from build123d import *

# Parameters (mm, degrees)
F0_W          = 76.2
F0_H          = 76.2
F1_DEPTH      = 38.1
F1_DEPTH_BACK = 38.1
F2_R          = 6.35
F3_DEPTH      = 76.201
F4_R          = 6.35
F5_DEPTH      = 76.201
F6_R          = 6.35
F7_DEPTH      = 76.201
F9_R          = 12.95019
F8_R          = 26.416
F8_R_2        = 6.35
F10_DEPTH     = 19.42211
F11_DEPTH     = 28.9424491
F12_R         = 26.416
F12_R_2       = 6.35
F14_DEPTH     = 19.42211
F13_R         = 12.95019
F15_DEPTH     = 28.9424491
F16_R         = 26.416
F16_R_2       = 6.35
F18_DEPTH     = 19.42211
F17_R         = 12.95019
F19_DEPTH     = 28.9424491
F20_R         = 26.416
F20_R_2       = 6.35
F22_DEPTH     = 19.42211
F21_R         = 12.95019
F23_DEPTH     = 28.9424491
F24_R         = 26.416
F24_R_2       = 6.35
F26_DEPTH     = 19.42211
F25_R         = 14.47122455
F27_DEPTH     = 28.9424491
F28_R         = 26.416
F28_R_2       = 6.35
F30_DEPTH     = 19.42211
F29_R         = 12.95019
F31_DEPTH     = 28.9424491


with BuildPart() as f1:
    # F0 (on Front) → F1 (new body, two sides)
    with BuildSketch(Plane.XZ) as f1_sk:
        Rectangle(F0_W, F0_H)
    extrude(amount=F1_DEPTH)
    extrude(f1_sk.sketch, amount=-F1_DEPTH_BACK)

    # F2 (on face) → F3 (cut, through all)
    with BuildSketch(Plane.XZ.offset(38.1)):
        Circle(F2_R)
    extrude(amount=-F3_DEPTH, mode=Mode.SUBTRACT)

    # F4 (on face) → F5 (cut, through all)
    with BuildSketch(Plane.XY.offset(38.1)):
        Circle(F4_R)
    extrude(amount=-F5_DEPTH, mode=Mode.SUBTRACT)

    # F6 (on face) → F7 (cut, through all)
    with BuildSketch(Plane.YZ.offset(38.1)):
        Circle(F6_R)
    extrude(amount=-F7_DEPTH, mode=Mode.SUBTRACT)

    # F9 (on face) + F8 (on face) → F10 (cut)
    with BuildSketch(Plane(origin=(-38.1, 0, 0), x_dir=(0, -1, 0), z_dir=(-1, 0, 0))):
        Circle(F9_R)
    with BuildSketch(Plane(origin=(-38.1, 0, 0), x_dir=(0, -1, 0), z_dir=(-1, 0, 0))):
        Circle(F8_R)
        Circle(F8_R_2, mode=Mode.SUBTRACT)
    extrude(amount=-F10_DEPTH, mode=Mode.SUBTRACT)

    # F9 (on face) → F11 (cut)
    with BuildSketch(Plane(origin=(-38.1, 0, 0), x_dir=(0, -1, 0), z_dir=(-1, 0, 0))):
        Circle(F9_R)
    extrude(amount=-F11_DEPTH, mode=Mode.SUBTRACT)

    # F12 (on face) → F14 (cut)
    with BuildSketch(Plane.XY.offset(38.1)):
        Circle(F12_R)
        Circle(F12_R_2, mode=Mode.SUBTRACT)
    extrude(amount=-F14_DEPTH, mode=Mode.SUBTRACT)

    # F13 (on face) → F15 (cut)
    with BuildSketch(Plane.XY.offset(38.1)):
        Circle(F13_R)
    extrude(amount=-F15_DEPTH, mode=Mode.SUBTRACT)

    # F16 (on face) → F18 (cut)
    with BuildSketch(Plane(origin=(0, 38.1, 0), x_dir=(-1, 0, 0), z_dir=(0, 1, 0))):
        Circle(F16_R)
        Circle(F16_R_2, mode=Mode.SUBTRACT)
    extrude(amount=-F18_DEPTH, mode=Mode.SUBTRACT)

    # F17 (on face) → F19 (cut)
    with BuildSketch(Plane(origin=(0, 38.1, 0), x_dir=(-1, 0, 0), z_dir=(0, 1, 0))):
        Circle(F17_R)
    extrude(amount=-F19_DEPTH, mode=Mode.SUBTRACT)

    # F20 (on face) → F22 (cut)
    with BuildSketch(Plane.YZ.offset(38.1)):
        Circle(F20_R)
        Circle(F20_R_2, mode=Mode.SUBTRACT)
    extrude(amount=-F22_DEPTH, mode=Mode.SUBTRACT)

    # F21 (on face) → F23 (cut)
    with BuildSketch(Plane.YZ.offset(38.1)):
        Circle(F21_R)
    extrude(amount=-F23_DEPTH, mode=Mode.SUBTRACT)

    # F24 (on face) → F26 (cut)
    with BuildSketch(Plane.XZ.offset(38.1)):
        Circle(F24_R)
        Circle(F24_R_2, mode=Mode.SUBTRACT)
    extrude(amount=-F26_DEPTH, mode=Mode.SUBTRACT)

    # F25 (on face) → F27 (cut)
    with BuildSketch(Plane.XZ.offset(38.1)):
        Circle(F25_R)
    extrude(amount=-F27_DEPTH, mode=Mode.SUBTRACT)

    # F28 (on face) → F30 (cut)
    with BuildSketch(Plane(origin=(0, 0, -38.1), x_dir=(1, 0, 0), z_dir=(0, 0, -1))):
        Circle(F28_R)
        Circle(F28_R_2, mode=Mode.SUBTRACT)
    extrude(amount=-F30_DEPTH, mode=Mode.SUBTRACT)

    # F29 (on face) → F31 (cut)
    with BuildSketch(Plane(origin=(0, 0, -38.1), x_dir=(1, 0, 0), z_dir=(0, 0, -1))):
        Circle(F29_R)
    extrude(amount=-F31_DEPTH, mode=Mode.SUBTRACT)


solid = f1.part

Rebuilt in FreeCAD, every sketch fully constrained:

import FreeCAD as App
import Part
import Sketcher
Q = App.Units.Quantity


def add_polygon(sketch, points):
    """Adds a closed chain of lines whose ends are joined by coincident constraints."""
    first, n = sketch.GeometryCount, len(points)
    for a, b in zip(points, points[1:] + points[:1]):
        sketch.addGeometry(Part.LineSegment(App.Vector(*a, 0), App.Vector(*b, 0)), False)
    for i in range(n):
        sketch.addConstraint(Sketcher.Constraint("Coincident", first + i, 2, first + (i + 1) % n, 1))

doc = App.newDocument("Part")
params = doc.addObject("Spreadsheet::Sheet", "Params")
for row, (alias, value) in enumerate([
    ("sketch1_width", "3 in"),
    ("pad1_length", "1.5 in"),
    ("pad1_length2", "1.5 in"),
    ("sketch2_diameter", "0.5 in"),
    ("sketch3_diameter", "0.5 in"),
    ("sketch4_diameter", "0.5 in"),
    ("sketch5_diameter", "2.08 in"),
    ("pocket4_length", "19.42211 mm"),
    ("pocket5_length", "28.942449 mm"),
    ("sketch7_diameter", "0.5 in"),
    ("sketch7_diameter2", "2.08 in"),
    ("pocket6_length", "19.42211 mm"),
    ("pocket7_length", "28.942449 mm"),
    ("sketch9_diameter", "0.5 in"),
    ("sketch9_diameter2", "2.08 in"),
    ("pocket8_length", "19.42211 mm"),
    ("pocket9_length", "28.942449 mm"),
    ("sketch11_diameter", "0.5 in"),
    ("sketch11_diameter2", "2.08 in"),
    ("pocket10_length", "19.42211 mm"),
    ("pocket11_length", "28.942449 mm"),
    ("sketch13_diameter", "0.5 in"),
    ("sketch13_diameter2", "2.08 in"),
    ("pocket12_length", "19.42211 mm"),
    ("pocket13_length", "28.942449 mm"),
    ("sketch15_diameter", "0.5 in"),
    ("sketch15_diameter2", "2.08 in"),
    ("pocket14_length", "19.42211 mm"),
    ("pocket15_length", "28.942449 mm"),
], start=1):
    params.set(f"A{row}", alias)
    params.set(f"B{row}", "=" + value)
    params.setAlias(f"B{row}", alias)

body = doc.addObject("PartDesign::Body", "Body")
body.AllowCompound = True

# Sketch on XZ plane
sketch1 = body.newObject("Sketcher::SketchObject", "Sketch")
sketch1.AttachmentSupport = (doc.getObject("XZ_Plane"), [""])
sketch1.MapMode = "FlatFace"
add_polygon(sketch1, [(-38.1, 38.1), (-38.1, -38.1), (38.1, -38.1), (38.1, 38.1)])  # lines 0-3
sketch1.addConstraint([
    Sketcher.Constraint("Vertical", 0),
    Sketcher.Constraint("Horizontal", 1),
    Sketcher.Constraint("Vertical", 2),
    Sketcher.Constraint("Horizontal", 3),
    Sketcher.Constraint("Symmetric", 0, 2, 2, 2, -1, 1),
    Sketcher.Constraint("Equal", 3, 0),
    Sketcher.Constraint("DistanceX", 1, 1, 1, 2, Q("3 in")),
])
sketch1.setExpression("Constraints[10]", "Params.sketch1_width")
pad1 = body.newObject("PartDesign::Pad", "Pad")
pad1.Profile = sketch1
pad1.Type = "TwoLengths"
pad1.setExpression("Length", "Params.pad1_length")
pad1.setExpression("Length2", "Params.pad1_length2")

# Sketch on XZ plane
sketch2 = body.newObject("Sketcher::SketchObject", "Sketch001")
sketch2.AttachmentSupport = (doc.getObject("XZ_Plane"), [""])
sketch2.MapMode = "FlatFace"
sketch2.AttachmentOffset = App.Placement(App.Vector(0, 0, 1.5 * 25.4), App.Rotation())
sketch2.addGeometry(Part.Circle(App.Vector(0, 0, 0), App.Vector(0, 0, 1), 6.35), False)
sketch2.addConstraint([
    Sketcher.Constraint("Coincident", 0, 3, -1, 1),
    Sketcher.Constraint("Diameter", 0, Q("0.5 in")),
])
sketch2.setExpression("Constraints[1]", "Params.sketch2_diameter")
pocket1 = body.newObject("PartDesign::Pocket", "Pocket")
pocket1.Profile = sketch2
pocket1.Type = "ThroughAll"

# Sketch on XY plane
sketch3 = body.newObject("Sketcher::SketchObject", "Sketch002")
sketch3.AttachmentSupport = (doc.getObject("XY_Plane"), [""])
sketch3.MapMode = "FlatFace"
sketch3.AttachmentOffset = App.Placement(App.Vector(0, 0, 1.5 * 25.4), App.Rotation())
sketch3.addGeometry(Part.Circle(App.Vector(0, 0, 0), App.Vector(0, 0, 1), 6.35), False)
sketch3.addConstraint([
    Sketcher.Constraint("Coincident", 0, 3, -1, 1),
    Sketcher.Constraint("Diameter", 0, Q("0.5 in")),
])
sketch3.setExpression("Constraints[1]", "Params.sketch3_diameter")
pocket2 = body.newObject("PartDesign::Pocket", "Pocket001")
pocket2.Profile = sketch3
pocket2.Type = "ThroughAll"

# Sketch on YZ plane
sketch4 = body.newObject("Sketcher::SketchObject", "Sketch003")
sketch4.AttachmentSupport = (doc.getObject("YZ_Plane"), [""])
sketch4.MapMode = "FlatFace"
sketch4.AttachmentOffset = App.Placement(App.Vector(0, 0, 1.5 * 25.4), App.Rotation())
sketch4.addGeometry(Part.Circle(App.Vector(0, 0, 0), App.Vector(0, 0, 1), 6.35), False)
sketch4.addConstraint([
    Sketcher.Constraint("Coincident", 0, 3, -1, 1),
    Sketcher.Constraint("Diameter", 0, Q("0.5 in")),
])
sketch4.setExpression("Constraints[1]", "Params.sketch4_diameter")
pocket3 = body.newObject("PartDesign::Pocket", "Pocket002")
pocket3.Profile = sketch4
pocket3.Type = "ThroughAll"

# Sketch on YZ plane
sketch5 = body.newObject("Sketcher::SketchObject", "Sketch004")
sketch5.AttachmentSupport = (doc.getObject("YZ_Plane"), [""])
sketch5.MapMode = "FlatFace"
sketch5.AttachmentOffset = App.Placement(App.Vector(0, 0, -1.5 * 25.4), App.Rotation())
sketch5.addGeometry(Part.Circle(App.Vector(0, 0, 0), App.Vector(0, 0, 1), 26.416), False)
sketch5.addConstraint([
    Sketcher.Constraint("Coincident", 0, 3, -1, 1),
    Sketcher.Constraint("Diameter", 0, Q("2.08 in")),
])
sketch5.setExpression("Constraints[1]", "Params.sketch5_diameter")
pocket4 = body.newObject("PartDesign::Pocket", "Pocket003")
pocket4.Profile = sketch5
pocket4.setExpression("Length", "Params.pocket4_length")
pocket4.Reversed = True

# Sketch on YZ plane
sketch6 = body.newObject("Sketcher::SketchObject", "Sketch005")
sketch6.AttachmentSupport = (doc.getObject("YZ_Plane"), [""])
sketch6.MapMode = "FlatFace"
sketch6.AttachmentOffset = App.Placement(App.Vector(0, 0, -1.5 * 25.4), App.Rotation())
sketch6.addGeometry(Part.Circle(App.Vector(0, 0, 0), App.Vector(0, 0, 1), 12.95019), False)
sketch6.addConstraint([
    Sketcher.Constraint("Coincident", 0, 3, -1, 1),
    Sketcher.Constraint("Diameter", 0, Q("1.0197 in")),
])
pocket5 = body.newObject("PartDesign::Pocket", "Pocket004")
pocket5.Profile = sketch6
pocket5.setExpression("Length", "Params.pocket5_length")
pocket5.Reversed = True

# Sketch on XY plane
sketch7 = body.newObject("Sketcher::SketchObject", "Sketch006")
sketch7.AttachmentSupport = (doc.getObject("XY_Plane"), [""])
sketch7.MapMode = "FlatFace"
sketch7.AttachmentOffset = App.Placement(App.Vector(0, 0, 1.5 * 25.4), App.Rotation())
sketch7.addGeometry([
    Part.Circle(App.Vector(0, 0, 0), App.Vector(0, 0, 1), 26.416),
    Part.Circle(App.Vector(0, 0, 0), App.Vector(0, 0, 1), 6.35),
], False)
sketch7.addConstraint([
    Sketcher.Constraint("Coincident", 0, 3, -1, 1),
    Sketcher.Constraint("Coincident", 1, 3, -1, 1),
    Sketcher.Constraint("Diameter", 1, Q("0.5 in")),
    Sketcher.Constraint("Diameter", 0, Q("2.08 in")),
])
sketch7.setExpression("Constraints[2]", "Params.sketch7_diameter")
sketch7.setExpression("Constraints[3]", "Params.sketch7_diameter2")
pocket6 = body.newObject("PartDesign::Pocket", "Pocket005")
pocket6.Profile = sketch7
pocket6.setExpression("Length", "Params.pocket6_length")

# Sketch on XY plane
sketch8 = body.newObject("Sketcher::SketchObject", "Sketch007")
sketch8.AttachmentSupport = (doc.getObject("XY_Plane"), [""])
sketch8.MapMode = "FlatFace"
sketch8.AttachmentOffset = App.Placement(App.Vector(0, 0, 1.5 * 25.4), App.Rotation())
sketch8.addGeometry(Part.Circle(App.Vector(0, 0, 0), App.Vector(0, 0, 1), 12.95019), False)
sketch8.addConstraint([
    Sketcher.Constraint("Coincident", 0, 3, -1, 1),
    Sketcher.Constraint("Diameter", 0, Q("1.0197 in")),
])
pocket7 = body.newObject("PartDesign::Pocket", "Pocket006")
pocket7.Profile = sketch8
pocket7.setExpression("Length", "Params.pocket7_length")

# Sketch on XZ plane
sketch9 = body.newObject("Sketcher::SketchObject", "Sketch008")
sketch9.AttachmentSupport = (doc.getObject("XZ_Plane"), [""])
sketch9.MapMode = "FlatFace"
sketch9.AttachmentOffset = App.Placement(App.Vector(0, 0, -1.5 * 25.4), App.Rotation())
sketch9.addGeometry([
    Part.Circle(App.Vector(0, 0, 0), App.Vector(0, 0, 1), 26.416),
    Part.Circle(App.Vector(0, 0, 0), App.Vector(0, 0, 1), 6.35),
], False)
sketch9.addConstraint([
    Sketcher.Constraint("Coincident", 0, 3, -1, 1),
    Sketcher.Constraint("Coincident", 1, 3, -1, 1),
    Sketcher.Constraint("Diameter", 1, Q("0.5 in")),
    Sketcher.Constraint("Diameter", 0, Q("2.08 in")),
])
sketch9.setExpression("Constraints[2]", "Params.sketch9_diameter")
sketch9.setExpression("Constraints[3]", "Params.sketch9_diameter2")
pocket8 = body.newObject("PartDesign::Pocket", "Pocket007")
pocket8.Profile = sketch9
pocket8.setExpression("Length", "Params.pocket8_length")
pocket8.Reversed = True

# Sketch on XZ plane
sketch10 = body.newObject("Sketcher::SketchObject", "Sketch009")
sketch10.AttachmentSupport = (doc.getObject("XZ_Plane"), [""])
sketch10.MapMode = "FlatFace"
sketch10.AttachmentOffset = App.Placement(App.Vector(0, 0, -1.5 * 25.4), App.Rotation())
sketch10.addGeometry(Part.Circle(App.Vector(0, 0, 0), App.Vector(0, 0, 1), 12.95019), False)
sketch10.addConstraint([
    Sketcher.Constraint("Coincident", 0, 3, -1, 1),
    Sketcher.Constraint("Diameter", 0, Q("1.0197 in")),
])
pocket9 = body.newObject("PartDesign::Pocket", "Pocket008")
pocket9.Profile = sketch10
pocket9.setExpression("Length", "Params.pocket9_length")
pocket9.Reversed = True

# Sketch on YZ plane
sketch11 = body.newObject("Sketcher::SketchObject", "Sketch010")
sketch11.AttachmentSupport = (doc.getObject("YZ_Plane"), [""])
sketch11.MapMode = "FlatFace"
sketch11.AttachmentOffset = App.Placement(App.Vector(0, 0, 1.5 * 25.4), App.Rotation())
sketch11.addGeometry([
    Part.Circle(App.Vector(0, 0, 0), App.Vector(0, 0, 1), 26.416),
    Part.Circle(App.Vector(0, 0, 0), App.Vector(0, 0, 1), 6.35),
], False)
sketch11.addConstraint([
    Sketcher.Constraint("Coincident", 0, 3, -1, 1),
    Sketcher.Constraint("Coincident", 1, 3, -1, 1),
    Sketcher.Constraint("Diameter", 1, Q("0.5 in")),
    Sketcher.Constraint("Diameter", 0, Q("2.08 in")),
])
sketch11.setExpression("Constraints[2]", "Params.sketch11_diameter")
sketch11.setExpression("Constraints[3]", "Params.sketch11_diameter2")
pocket10 = body.newObject("PartDesign::Pocket", "Pocket009")
pocket10.Profile = sketch11
pocket10.setExpression("Length", "Params.pocket10_length")

# Sketch on YZ plane
sketch12 = body.newObject("Sketcher::SketchObject", "Sketch011")
sketch12.AttachmentSupport = (doc.getObject("YZ_Plane"), [""])
sketch12.MapMode = "FlatFace"
sketch12.AttachmentOffset = App.Placement(App.Vector(0, 0, 1.5 * 25.4), App.Rotation())
sketch12.addGeometry(Part.Circle(App.Vector(0, 0, 0), App.Vector(0, 0, 1), 12.95019), False)
sketch12.addConstraint([
    Sketcher.Constraint("Coincident", 0, 3, -1, 1),
    Sketcher.Constraint("Diameter", 0, Q("1.0197 in")),
])
pocket11 = body.newObject("PartDesign::Pocket", "Pocket010")
pocket11.Profile = sketch12
pocket11.setExpression("Length", "Params.pocket11_length")

# Sketch on XZ plane
sketch13 = body.newObject("Sketcher::SketchObject", "Sketch012")
sketch13.AttachmentSupport = (doc.getObject("XZ_Plane"), [""])
sketch13.MapMode = "FlatFace"
sketch13.AttachmentOffset = App.Placement(App.Vector(0, 0, 1.5 * 25.4), App.Rotation())
sketch13.addGeometry([
    Part.Circle(App.Vector(0, 0, 0), App.Vector(0, 0, 1), 26.416),
    Part.Circle(App.Vector(0, 0, 0), App.Vector(0, 0, 1), 6.35),
], False)
sketch13.addConstraint([
    Sketcher.Constraint("Coincident", 0, 3, -1, 1),
    Sketcher.Constraint("Coincident", 1, 3, -1, 1),
    Sketcher.Constraint("Diameter", 1, Q("0.5 in")),
    Sketcher.Constraint("Diameter", 0, Q("2.08 in")),
])
sketch13.setExpression("Constraints[2]", "Params.sketch13_diameter")
sketch13.setExpression("Constraints[3]", "Params.sketch13_diameter2")
pocket12 = body.newObject("PartDesign::Pocket", "Pocket011")
pocket12.Profile = sketch13
pocket12.setExpression("Length", "Params.pocket12_length")

# Sketch on XZ plane
sketch14 = body.newObject("Sketcher::SketchObject", "Sketch013")
sketch14.AttachmentSupport = (doc.getObject("XZ_Plane"), [""])
sketch14.MapMode = "FlatFace"
sketch14.AttachmentOffset = App.Placement(App.Vector(0, 0, 1.5 * 25.4), App.Rotation())
sketch14.addGeometry(Part.Circle(App.Vector(0, 0, 0), App.Vector(0, 0, 1), 14.471225), False)
sketch14.addConstraint([
    Sketcher.Constraint("Coincident", 0, 3, -1, 1),
    Sketcher.Constraint("Diameter", 0, Q("28.942449 mm")),
])
pocket13 = body.newObject("PartDesign::Pocket", "Pocket012")
pocket13.Profile = sketch14
pocket13.setExpression("Length", "Params.pocket13_length")

# Sketch on XY plane
sketch15 = body.newObject("Sketcher::SketchObject", "Sketch014")
sketch15.AttachmentSupport = (doc.getObject("XY_Plane"), [""])
sketch15.MapMode = "FlatFace"
sketch15.AttachmentOffset = App.Placement(App.Vector(0, 0, -1.5 * 25.4), App.Rotation())
sketch15.addGeometry([
    Part.Circle(App.Vector(0, 0, 0), App.Vector(0, 0, 1), 26.416),
    Part.Circle(App.Vector(0, 0, 0), App.Vector(0, 0, 1), 6.35),
], False)
sketch15.addConstraint([
    Sketcher.Constraint("Coincident", 0, 3, -1, 1),
    Sketcher.Constraint("Coincident", 1, 3, -1, 1),
    Sketcher.Constraint("Diameter", 1, Q("0.5 in")),
    Sketcher.Constraint("Diameter", 0, Q("2.08 in")),
])
sketch15.setExpression("Constraints[2]", "Params.sketch15_diameter")
sketch15.setExpression("Constraints[3]", "Params.sketch15_diameter2")
pocket14 = body.newObject("PartDesign::Pocket", "Pocket013")
pocket14.Profile = sketch15
pocket14.setExpression("Length", "Params.pocket14_length")
pocket14.Reversed = True

# Sketch on XY plane
sketch16 = body.newObject("Sketcher::SketchObject", "Sketch015")
sketch16.AttachmentSupport = (doc.getObject("XY_Plane"), [""])
sketch16.MapMode = "FlatFace"
sketch16.AttachmentOffset = App.Placement(App.Vector(0, 0, -1.5 * 25.4), App.Rotation())
sketch16.addGeometry(Part.Circle(App.Vector(0, 0, 0), App.Vector(0, 0, 1), 12.95019), False)
sketch16.addConstraint([
    Sketcher.Constraint("Coincident", 0, 3, -1, 1),
    Sketcher.Constraint("Diameter", 0, Q("1.0197 in")),
])
pocket15 = body.newObject("PartDesign::Pocket", "Pocket014")
pocket15.Profile = sketch16
pocket15.setExpression("Length", "Params.pocket15_length")
pocket15.Reversed = True

doc.recompute()
